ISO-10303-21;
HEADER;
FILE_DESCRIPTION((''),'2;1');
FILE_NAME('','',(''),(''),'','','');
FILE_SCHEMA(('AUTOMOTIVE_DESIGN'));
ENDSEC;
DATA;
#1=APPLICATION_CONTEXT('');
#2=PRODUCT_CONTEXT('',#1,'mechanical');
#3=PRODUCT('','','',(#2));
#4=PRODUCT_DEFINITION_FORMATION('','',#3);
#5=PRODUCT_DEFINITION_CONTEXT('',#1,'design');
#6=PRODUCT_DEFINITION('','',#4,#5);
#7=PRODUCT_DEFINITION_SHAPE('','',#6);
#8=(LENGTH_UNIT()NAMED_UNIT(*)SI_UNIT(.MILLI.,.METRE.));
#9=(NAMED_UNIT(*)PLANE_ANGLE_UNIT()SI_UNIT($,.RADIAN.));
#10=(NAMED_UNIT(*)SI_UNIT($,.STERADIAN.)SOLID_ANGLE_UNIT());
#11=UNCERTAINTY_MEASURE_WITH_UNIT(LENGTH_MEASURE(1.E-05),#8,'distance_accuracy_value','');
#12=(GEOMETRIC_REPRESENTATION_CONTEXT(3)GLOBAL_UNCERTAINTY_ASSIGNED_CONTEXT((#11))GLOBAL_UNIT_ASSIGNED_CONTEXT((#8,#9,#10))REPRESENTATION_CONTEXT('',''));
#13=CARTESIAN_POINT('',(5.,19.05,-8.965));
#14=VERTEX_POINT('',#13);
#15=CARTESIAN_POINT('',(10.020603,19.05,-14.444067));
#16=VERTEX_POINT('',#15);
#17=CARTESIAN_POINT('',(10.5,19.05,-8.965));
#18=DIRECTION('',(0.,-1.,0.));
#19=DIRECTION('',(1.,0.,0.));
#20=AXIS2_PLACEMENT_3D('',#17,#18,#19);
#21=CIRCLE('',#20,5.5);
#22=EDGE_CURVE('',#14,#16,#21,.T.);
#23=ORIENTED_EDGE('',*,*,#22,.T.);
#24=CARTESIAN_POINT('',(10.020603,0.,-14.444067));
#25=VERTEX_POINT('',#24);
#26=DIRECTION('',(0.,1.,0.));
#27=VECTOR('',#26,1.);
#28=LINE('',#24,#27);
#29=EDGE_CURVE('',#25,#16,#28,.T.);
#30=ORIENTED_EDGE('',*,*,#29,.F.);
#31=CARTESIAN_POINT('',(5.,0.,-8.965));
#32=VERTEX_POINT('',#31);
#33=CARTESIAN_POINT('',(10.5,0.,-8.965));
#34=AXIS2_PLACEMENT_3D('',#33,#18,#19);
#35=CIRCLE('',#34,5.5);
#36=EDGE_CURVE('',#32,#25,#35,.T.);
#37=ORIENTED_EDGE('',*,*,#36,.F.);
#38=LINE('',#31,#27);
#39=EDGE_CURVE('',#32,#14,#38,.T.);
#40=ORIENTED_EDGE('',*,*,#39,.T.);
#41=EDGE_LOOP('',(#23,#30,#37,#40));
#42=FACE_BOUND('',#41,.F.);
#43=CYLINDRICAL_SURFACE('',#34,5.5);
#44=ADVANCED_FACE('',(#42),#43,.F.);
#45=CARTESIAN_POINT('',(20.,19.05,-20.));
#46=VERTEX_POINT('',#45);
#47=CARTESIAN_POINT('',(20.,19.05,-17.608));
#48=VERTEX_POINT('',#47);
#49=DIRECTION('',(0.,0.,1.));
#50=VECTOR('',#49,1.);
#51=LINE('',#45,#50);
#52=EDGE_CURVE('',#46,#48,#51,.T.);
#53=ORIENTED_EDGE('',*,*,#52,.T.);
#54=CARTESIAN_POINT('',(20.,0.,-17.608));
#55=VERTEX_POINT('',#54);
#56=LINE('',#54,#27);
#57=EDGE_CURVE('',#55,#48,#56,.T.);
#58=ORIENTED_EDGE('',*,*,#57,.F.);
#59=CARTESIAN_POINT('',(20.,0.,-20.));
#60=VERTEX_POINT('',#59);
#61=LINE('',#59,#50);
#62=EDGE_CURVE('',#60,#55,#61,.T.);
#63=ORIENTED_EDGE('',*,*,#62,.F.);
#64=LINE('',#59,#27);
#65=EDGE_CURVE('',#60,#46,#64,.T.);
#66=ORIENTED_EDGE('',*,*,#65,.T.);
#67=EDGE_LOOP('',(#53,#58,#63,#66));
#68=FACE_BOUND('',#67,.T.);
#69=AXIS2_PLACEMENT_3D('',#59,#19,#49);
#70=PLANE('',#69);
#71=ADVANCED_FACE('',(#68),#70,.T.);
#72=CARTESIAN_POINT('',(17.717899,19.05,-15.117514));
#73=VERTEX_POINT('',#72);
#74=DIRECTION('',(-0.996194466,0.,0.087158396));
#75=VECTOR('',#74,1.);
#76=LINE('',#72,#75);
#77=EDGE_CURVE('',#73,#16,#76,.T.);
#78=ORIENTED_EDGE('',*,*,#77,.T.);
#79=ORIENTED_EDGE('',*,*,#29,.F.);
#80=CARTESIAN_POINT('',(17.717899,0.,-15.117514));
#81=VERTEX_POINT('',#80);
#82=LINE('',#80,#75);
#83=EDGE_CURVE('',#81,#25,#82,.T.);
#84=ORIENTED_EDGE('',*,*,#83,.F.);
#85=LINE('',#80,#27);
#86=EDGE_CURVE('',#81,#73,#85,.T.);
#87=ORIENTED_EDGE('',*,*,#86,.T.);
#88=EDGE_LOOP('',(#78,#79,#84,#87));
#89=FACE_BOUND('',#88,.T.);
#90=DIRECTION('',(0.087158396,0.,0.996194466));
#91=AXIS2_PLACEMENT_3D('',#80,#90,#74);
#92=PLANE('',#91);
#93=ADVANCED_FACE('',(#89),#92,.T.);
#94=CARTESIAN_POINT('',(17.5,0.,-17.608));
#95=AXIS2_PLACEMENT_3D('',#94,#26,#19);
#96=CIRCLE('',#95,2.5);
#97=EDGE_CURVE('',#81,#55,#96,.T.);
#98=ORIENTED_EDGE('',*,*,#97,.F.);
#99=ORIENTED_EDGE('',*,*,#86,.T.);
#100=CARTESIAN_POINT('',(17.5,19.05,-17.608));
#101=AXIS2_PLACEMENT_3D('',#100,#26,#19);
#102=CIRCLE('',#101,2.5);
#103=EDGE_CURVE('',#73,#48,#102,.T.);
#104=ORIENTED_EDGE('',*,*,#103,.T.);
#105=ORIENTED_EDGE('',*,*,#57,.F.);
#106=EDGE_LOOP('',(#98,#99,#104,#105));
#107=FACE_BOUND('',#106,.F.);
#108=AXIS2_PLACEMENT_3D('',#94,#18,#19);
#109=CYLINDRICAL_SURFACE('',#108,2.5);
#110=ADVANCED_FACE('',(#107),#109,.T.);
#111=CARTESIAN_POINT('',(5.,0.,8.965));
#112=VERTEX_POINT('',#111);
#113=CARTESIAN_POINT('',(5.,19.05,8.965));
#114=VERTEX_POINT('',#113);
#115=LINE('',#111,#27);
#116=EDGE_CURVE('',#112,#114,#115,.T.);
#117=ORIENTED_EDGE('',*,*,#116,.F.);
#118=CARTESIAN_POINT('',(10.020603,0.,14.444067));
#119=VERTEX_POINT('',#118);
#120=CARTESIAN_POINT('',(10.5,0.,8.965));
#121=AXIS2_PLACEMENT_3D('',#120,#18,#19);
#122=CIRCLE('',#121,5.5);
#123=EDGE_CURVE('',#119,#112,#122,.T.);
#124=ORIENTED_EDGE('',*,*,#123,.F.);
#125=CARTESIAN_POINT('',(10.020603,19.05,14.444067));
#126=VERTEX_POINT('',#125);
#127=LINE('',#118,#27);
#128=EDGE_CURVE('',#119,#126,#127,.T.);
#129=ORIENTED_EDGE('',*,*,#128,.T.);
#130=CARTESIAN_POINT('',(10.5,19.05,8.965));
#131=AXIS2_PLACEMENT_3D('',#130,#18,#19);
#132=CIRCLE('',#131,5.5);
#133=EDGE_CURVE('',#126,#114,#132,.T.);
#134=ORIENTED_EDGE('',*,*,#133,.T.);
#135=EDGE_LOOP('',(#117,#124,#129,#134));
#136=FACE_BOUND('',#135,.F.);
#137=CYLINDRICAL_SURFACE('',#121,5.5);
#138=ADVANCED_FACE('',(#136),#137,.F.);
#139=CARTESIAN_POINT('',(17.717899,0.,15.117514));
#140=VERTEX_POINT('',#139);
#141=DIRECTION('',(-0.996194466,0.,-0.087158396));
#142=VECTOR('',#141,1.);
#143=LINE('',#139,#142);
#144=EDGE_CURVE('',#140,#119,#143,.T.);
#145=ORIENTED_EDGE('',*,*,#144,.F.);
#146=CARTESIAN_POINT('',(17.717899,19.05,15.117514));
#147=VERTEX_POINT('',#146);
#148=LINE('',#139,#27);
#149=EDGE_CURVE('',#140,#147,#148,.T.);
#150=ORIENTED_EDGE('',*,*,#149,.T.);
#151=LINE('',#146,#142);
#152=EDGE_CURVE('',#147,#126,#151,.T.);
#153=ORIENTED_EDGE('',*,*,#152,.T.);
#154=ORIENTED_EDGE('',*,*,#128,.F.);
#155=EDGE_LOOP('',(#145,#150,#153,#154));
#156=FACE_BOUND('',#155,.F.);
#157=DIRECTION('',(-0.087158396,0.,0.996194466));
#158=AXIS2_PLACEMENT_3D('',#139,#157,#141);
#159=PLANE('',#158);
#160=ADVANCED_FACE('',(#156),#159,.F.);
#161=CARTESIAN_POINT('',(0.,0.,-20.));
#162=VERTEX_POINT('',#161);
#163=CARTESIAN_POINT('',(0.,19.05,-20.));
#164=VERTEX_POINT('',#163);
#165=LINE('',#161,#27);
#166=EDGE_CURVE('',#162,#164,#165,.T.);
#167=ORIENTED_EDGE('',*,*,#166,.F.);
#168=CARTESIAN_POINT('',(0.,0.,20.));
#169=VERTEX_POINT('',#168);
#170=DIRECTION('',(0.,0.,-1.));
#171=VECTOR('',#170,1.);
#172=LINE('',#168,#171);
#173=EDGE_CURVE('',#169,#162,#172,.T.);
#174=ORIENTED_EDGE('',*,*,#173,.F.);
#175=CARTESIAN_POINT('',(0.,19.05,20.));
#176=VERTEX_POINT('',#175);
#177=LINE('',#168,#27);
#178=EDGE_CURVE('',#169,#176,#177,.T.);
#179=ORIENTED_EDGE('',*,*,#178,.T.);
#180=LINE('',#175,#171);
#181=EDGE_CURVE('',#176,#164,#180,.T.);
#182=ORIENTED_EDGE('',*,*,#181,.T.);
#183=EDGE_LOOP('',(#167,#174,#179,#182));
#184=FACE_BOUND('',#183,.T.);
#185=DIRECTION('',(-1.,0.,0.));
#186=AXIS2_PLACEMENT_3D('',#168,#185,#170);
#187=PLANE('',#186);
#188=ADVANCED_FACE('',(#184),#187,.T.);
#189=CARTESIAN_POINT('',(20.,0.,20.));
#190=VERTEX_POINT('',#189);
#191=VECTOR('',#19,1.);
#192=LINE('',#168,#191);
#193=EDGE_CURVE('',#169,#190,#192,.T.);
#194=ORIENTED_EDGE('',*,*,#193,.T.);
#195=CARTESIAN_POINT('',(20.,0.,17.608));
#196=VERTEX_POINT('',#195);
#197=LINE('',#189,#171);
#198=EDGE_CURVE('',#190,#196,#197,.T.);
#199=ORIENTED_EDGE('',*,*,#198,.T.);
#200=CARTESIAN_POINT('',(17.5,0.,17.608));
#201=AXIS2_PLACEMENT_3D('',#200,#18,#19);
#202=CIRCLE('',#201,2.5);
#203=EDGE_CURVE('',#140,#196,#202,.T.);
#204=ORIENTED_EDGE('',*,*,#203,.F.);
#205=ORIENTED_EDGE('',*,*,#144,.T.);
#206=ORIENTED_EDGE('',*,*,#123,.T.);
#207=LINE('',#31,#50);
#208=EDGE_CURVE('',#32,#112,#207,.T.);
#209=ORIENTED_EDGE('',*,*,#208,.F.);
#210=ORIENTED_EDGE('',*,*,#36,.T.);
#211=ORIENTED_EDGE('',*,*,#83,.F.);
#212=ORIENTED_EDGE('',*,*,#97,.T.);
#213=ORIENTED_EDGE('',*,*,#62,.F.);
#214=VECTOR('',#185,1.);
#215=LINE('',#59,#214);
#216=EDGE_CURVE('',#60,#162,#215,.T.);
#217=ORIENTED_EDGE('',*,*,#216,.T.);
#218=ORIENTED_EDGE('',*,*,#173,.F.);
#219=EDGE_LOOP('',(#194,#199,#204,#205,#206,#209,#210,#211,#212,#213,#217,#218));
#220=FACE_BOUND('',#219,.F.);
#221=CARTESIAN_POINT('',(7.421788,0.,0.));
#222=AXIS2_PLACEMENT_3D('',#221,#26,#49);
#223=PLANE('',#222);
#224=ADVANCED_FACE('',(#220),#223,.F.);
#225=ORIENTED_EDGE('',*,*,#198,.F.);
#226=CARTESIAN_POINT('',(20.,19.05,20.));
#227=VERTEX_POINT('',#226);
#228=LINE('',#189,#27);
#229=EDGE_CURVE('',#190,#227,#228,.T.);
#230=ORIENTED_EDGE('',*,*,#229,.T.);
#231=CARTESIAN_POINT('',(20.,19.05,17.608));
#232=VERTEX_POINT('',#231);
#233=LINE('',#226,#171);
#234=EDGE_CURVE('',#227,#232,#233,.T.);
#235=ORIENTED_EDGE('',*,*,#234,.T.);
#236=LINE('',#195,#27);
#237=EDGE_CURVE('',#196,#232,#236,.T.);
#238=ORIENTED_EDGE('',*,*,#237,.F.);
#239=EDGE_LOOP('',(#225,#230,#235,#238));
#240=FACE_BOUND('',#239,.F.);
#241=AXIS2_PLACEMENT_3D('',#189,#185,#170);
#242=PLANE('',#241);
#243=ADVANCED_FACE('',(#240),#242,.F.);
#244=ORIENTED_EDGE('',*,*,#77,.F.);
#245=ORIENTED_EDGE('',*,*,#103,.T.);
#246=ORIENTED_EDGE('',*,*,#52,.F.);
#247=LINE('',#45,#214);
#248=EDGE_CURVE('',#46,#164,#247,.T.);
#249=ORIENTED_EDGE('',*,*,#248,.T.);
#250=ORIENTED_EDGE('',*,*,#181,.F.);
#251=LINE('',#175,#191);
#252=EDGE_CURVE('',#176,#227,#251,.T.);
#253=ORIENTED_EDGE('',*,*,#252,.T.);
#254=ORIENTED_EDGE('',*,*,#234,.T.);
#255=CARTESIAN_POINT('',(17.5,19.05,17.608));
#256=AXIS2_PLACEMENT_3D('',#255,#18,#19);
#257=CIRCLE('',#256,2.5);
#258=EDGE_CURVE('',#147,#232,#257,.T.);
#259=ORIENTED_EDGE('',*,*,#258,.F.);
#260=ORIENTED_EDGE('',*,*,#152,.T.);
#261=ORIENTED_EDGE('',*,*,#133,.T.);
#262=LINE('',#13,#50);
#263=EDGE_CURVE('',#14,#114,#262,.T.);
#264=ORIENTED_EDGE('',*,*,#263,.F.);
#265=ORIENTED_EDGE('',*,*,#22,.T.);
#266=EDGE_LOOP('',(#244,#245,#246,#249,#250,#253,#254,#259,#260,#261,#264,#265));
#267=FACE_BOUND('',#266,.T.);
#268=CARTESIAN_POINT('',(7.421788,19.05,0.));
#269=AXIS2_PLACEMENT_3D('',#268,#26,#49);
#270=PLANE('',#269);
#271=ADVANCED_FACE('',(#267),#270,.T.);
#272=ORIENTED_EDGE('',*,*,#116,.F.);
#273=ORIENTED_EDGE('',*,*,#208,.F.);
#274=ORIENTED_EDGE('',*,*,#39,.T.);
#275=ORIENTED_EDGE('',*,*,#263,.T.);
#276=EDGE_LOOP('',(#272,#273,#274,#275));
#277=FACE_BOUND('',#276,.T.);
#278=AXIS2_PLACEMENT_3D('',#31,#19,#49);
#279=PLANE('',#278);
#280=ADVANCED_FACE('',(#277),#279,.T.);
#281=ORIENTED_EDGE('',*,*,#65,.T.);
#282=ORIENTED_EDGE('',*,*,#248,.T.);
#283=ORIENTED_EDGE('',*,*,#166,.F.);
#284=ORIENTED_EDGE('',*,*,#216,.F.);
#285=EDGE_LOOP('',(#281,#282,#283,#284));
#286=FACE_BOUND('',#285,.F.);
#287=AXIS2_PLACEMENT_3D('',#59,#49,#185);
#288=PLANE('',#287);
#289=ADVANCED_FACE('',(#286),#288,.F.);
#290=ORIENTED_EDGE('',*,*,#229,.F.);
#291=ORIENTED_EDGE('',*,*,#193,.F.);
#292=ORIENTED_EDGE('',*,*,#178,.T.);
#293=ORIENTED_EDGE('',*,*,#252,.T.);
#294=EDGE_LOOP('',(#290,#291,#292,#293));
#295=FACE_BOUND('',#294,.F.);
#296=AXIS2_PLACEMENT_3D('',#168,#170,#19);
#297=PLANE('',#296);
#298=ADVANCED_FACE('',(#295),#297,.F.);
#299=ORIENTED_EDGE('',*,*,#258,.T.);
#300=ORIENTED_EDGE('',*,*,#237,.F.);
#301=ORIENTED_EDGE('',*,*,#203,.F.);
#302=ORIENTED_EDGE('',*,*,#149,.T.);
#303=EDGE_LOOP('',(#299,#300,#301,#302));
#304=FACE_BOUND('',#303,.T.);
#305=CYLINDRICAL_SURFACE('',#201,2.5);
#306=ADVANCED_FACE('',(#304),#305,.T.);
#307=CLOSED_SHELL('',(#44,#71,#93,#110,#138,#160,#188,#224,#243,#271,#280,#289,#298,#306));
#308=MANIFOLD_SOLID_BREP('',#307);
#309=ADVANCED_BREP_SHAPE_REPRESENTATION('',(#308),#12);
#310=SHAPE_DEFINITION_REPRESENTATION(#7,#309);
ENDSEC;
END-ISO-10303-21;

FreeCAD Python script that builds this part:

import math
import FreeCAD as App
import Part
import Sketcher
Q = App.Units.Quantity

doc = App.newDocument("Part")
body = doc.addObject("PartDesign::Body", "Body")

# Sketch on XZ plane
sketch1 = body.newObject("Sketcher::SketchObject", "Sketch")
sketch1.AttachmentSupport = (doc.getObject("XZ_Plane"), [""])
sketch1.MapMode = "FlatFace"
sketch1.addGeometry(Part.LineSegment(App.Vector(0, -20, 0), App.Vector(20, -20, 0)), False)
sketch1.addGeometry(Part.LineSegment(App.Vector(20, -20, 0), App.Vector(20, -17.6, 0)), False)
sketch1.addGeometry(Part.ArcOfCircle(Part.Circle(App.Vector(17.5, -17.6, 0), App.Vector(0, 0, 1), 2.5), math.radians(0), math.radians(85)), False)
sketch1.addGeometry(Part.LineSegment(App.Vector(17.7, -15.1, 0), App.Vector(10, -14.4, 0)), False)
sketch1.addGeometry(Part.ArcOfCircle(Part.Circle(App.Vector(10.5, -9, 0), App.Vector(0, 0, 1), 5.5), math.radians(180), math.radians(265)), False)
sketch1.addGeometry(Part.LineSegment(App.Vector(5, -9, 0), App.Vector(5, 9, 0)), False)
sketch1.addGeometry(Part.ArcOfCircle(Part.Circle(App.Vector(10.5, 9, 0), App.Vector(0, 0, 1), 5.5), math.radians(95), math.radians(180)), False)
sketch1.addGeometry(Part.LineSegment(App.Vector(10, 14.4, 0), App.Vector(17.7, 15.1, 0)), False)
sketch1.addGeometry(Part.ArcOfCircle(Part.Circle(App.Vector(17.5, 17.6, 0), App.Vector(0, 0, 1), 2.5), math.radians(-85), math.radians(0)), False)
sketch1.addGeometry(Part.LineSegment(App.Vector(20, 17.6, 0), App.Vector(20, 20, 0)), False)
sketch1.addGeometry(Part.LineSegment(App.Vector(20, 20, 0), App.Vector(0, 20, 0)), False)
sketch1.addGeometry(Part.LineSegment(App.Vector(0, 20, 0), App.Vector(0, -20, 0)), False)
sketch1.addConstraint(Sketcher.Constraint("Coincident", 0, 2, 1, 1))
sketch1.addConstraint(Sketcher.Constraint("Tangent", 1, 2, 2, 1))
sketch1.addConstraint(Sketcher.Constraint("Tangent", 2, 2, 3, 1))
sketch1.addConstraint(Sketcher.Constraint("Tangent", 3, 2, 4, 2))
sketch1.addConstraint(Sketcher.Constraint("Tangent", 4, 1, 5, 1))
sketch1.addConstraint(Sketcher.Constraint("Tangent", 5, 2, 6, 2))
sketch1.addConstraint(Sketcher.Constraint("Tangent", 6, 1, 7, 1))
sketch1.addConstraint(Sketcher.Constraint("Tangent", 7, 2, 8, 1))
sketch1.addConstraint(Sketcher.Constraint("Tangent", 8, 2, 9, 1))
sketch1.addConstraint(Sketcher.Constraint("Coincident", 9, 2, 10, 1))
sketch1.addConstraint(Sketcher.Constraint("Coincident", 10, 2, 11, 1))
sketch1.addConstraint(Sketcher.Constraint("Coincident", 11, 2, 0, 1))
sketch1.addConstraint(Sketcher.Constraint("Horizontal", 0))
sketch1.addConstraint(Sketcher.Constraint("Vertical", 1))
sketch1.addConstraint(Sketcher.Constraint("Vertical", 5))
sketch1.addConstraint(Sketcher.Constraint("Vertical", 9))
sketch1.addConstraint(Sketcher.Constraint("Horizontal", 10))
sketch1.addConstraint(Sketcher.Constraint("Vertical", 11))
sketch1.addConstraint(Sketcher.Constraint("Equal", 4, 6))
sketch1.addConstraint(Sketcher.Constraint("Equal", 2, 8))
sketch1.addConstraint(Sketcher.Constraint("Symmetric", 10, 2, 11, 2, -1, 1))
sketch1.addConstraint(Sketcher.Constraint("Symmetric", 2, 3, 8, 3, -1))
sketch1.addConstraint(Sketcher.Constraint("Vertical", 3, 2, 6, 1))
sketch1.addConstraint(Sketcher.Constraint("Radius", 2, Q("2.5 mm")))
sketch1.addConstraint(Sketcher.Constraint("Radius", 4, Q("5.5 mm")))
sketch1.addConstraint(Sketcher.Constraint("DistanceX", 0, 1, 0, 2, Q("20 mm")))
sketch1.addConstraint(Sketcher.Constraint("DistanceY", 11, 2, 11, 1, Q("40 mm")))
sketch1.addConstraint(Sketcher.Constraint("Angle", 3, Q("175.0002 deg")))
sketch1.addConstraint(Sketcher.Constraint("DistanceX", -1, 1, 4, 1, Q("5 mm")))
sketch1.addConstraint(Sketcher.Constraint("DistanceY", 5, 1, 5, 2, Q("17.93 mm")))
pad1 = body.newObject("PartDesign::Pad", "Pad")
pad1.Profile = sketch1
pad1.Length = 19.05
pad1.Reversed = True

doc.recompute()
